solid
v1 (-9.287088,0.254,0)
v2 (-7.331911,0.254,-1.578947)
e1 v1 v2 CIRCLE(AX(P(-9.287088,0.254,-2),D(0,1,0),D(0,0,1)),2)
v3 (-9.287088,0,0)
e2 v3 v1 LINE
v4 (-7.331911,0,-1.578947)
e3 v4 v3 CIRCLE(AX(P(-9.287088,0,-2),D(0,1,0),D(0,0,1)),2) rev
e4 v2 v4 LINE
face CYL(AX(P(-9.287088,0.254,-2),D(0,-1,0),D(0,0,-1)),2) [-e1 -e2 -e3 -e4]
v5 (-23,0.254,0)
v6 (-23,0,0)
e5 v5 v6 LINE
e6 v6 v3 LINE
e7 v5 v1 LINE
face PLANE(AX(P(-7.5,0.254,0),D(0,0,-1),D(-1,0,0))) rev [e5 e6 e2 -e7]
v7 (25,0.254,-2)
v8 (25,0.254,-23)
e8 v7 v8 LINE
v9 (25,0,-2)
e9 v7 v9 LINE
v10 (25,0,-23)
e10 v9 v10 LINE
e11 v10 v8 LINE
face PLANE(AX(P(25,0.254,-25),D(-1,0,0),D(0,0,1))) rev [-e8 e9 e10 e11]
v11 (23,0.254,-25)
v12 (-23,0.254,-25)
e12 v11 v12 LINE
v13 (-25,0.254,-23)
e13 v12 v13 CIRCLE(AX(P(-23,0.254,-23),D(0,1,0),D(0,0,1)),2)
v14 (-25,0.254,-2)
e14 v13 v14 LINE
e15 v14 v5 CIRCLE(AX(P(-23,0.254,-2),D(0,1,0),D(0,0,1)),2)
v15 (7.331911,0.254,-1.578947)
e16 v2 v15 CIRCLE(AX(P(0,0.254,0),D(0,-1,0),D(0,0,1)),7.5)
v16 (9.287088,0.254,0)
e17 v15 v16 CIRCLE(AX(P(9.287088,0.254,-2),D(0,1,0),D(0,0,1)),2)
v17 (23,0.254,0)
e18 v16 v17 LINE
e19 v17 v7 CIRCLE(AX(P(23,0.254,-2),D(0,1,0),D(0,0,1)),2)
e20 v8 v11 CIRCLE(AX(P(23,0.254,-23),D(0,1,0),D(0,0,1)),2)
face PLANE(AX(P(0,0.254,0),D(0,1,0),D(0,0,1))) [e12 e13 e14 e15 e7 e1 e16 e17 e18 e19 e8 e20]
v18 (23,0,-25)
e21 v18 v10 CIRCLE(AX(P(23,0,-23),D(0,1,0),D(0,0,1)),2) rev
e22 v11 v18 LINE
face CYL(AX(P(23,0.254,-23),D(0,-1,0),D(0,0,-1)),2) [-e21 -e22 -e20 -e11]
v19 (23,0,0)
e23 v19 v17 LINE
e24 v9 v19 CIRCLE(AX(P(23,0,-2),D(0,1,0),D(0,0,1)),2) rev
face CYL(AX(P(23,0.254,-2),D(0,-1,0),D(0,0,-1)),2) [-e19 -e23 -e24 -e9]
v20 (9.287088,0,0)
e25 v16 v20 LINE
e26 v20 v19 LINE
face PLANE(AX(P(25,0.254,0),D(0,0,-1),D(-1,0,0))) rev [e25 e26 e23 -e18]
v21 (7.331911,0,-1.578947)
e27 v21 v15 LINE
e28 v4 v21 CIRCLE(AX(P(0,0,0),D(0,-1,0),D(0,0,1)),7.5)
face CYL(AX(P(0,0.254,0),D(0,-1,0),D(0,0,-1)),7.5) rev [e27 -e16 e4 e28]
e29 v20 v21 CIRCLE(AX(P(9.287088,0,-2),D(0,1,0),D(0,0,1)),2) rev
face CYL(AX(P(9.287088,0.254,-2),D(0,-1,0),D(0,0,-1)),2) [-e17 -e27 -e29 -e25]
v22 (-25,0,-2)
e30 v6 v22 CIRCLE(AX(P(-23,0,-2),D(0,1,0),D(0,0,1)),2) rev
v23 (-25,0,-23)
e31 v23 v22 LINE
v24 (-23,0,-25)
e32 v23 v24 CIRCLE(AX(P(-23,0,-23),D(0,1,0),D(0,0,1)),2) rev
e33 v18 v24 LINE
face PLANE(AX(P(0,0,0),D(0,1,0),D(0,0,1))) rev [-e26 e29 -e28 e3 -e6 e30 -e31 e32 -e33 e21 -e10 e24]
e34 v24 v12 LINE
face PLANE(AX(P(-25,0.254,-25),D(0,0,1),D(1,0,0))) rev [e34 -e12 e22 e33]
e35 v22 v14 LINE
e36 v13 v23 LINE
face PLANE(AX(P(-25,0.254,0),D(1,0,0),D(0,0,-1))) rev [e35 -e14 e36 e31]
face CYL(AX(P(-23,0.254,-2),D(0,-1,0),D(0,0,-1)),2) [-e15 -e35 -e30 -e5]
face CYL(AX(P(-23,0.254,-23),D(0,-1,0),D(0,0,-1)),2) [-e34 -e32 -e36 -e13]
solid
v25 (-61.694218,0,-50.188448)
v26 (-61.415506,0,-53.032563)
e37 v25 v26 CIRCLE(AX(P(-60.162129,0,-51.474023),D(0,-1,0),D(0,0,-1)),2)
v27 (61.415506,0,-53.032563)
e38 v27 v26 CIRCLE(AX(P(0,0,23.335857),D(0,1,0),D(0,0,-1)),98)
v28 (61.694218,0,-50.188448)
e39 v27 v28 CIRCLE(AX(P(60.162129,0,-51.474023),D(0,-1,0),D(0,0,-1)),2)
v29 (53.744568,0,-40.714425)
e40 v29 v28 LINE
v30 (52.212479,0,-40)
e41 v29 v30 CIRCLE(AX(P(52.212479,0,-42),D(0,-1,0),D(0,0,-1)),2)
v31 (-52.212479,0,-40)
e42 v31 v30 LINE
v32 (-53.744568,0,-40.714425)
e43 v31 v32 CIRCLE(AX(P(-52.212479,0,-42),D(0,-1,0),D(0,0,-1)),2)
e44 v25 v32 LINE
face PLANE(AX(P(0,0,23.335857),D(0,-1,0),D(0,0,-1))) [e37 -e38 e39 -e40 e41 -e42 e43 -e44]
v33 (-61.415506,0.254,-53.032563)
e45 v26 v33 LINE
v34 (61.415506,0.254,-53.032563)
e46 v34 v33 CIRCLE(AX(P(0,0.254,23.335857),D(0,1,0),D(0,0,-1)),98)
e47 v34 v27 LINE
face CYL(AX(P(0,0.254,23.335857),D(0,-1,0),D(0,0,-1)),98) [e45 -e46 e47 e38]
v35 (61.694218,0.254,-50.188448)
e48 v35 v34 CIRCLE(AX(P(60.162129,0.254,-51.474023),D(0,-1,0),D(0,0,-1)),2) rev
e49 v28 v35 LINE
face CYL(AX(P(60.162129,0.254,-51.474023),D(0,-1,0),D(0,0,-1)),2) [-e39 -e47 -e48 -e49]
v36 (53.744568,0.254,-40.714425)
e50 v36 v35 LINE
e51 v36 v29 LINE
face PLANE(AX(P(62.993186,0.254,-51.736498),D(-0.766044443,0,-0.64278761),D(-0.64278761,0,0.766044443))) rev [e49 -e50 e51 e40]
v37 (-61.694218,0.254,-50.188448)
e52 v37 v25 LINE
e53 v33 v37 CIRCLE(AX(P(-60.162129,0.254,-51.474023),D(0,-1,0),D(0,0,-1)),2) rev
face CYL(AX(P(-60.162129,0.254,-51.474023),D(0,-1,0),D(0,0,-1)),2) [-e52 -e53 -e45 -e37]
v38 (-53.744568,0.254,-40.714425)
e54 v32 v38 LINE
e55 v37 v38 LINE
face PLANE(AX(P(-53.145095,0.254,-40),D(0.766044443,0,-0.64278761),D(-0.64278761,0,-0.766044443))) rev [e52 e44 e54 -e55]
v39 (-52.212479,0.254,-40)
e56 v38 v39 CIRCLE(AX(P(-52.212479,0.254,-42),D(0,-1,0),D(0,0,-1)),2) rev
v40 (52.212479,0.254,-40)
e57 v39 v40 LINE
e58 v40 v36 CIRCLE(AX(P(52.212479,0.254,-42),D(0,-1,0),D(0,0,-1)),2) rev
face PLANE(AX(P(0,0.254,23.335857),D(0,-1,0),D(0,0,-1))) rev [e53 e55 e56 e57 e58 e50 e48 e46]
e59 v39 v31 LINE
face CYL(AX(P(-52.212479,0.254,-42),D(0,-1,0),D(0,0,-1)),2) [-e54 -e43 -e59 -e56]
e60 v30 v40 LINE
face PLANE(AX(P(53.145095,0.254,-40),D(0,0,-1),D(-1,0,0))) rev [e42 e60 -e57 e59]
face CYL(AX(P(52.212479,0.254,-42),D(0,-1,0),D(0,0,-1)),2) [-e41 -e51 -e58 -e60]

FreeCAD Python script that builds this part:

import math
import FreeCAD as App
import Part
import Sketcher

V = App.Vector
Q = App.Units.Quantity


def edges_at(feature, points):
    """Names of the edges that pass closest to the given points."""
    edges = feature.Shape.Edges
    near = lambda p: min(range(len(edges)), key=lambda i: edges[i].distToShape(Part.Vertex(*p))[0])
    return sorted({f"Edge{near(p) + 1}" for p in points})

doc = App.newDocument("Part")
body = doc.addObject("PartDesign::Body", "Body")

# Sketch on XZ plane
sketch1 = body.newObject("Sketcher::SketchObject", "Sketch")
sketch1.AttachmentSupport = (doc.getObject("XZ_Plane"), [""])
sketch1.MapMode = "FlatFace"
sketch1.addGeometry([
    Part.LineSegment(V(-25, 0, 0), V(-8, 0, 0)),  # 0
    Part.ArcOfCircle(Part.Circle(V(0, 0, 0), V(0, 0, 1), 8), math.radians(180), math.radians(360)),  # 1
    Part.LineSegment(V(8, 0, 0), V(25, 0, 0)),  # 2
    Part.LineSegment(V(25, 0, 0), V(25, -25, 0)),  # 3
    Part.LineSegment(V(25, -25, 0), V(-25, -25, 0)),  # 4
    Part.LineSegment(V(-25, -25, 0), V(-25, 0, 0)),  # 5
], False)
sketch1.addConstraint([
    Sketcher.Constraint("Coincident", 0, 2, 1, 1),
    Sketcher.Constraint("Coincident", 1, 2, 2, 1),
    Sketcher.Constraint("Coincident", 2, 2, 3, 1),
    Sketcher.Constraint("Coincident", 3, 2, 4, 1),
    Sketcher.Constraint("Coincident", 4, 2, 5, 1),
    Sketcher.Constraint("Coincident", 5, 2, 0, 1),
    Sketcher.Constraint("Horizontal", 0),
    Sketcher.Constraint("Horizontal", 2),
    Sketcher.Constraint("Vertical", 3),
    Sketcher.Constraint("Horizontal", 4),
    Sketcher.Constraint("Vertical", 5),
    Sketcher.Constraint("Coincident", 1, 3, -1, 1),
    Sketcher.Constraint("Symmetric", 2, 2, 5, 2, -1, 1),
    Sketcher.Constraint("PointOnObject", 0, 2, -1),
    Sketcher.Constraint("Radius", 1, Q("7.5 mm")),
    Sketcher.Constraint("DistanceX", 4, 2, 4, 1, Q("50 mm")),
    Sketcher.Constraint("DistanceY", 3, 2, 3, 1, Q("25 mm")),
])
pad1 = body.newObject("PartDesign::Pad", "Pad")
pad1.Profile = sketch1
pad1.Length = 0.254
pad1.Reversed = True
doc.recompute()

fillet = body.newObject("PartDesign::Fillet", "Fillet")
fillet.Base = (pad1, edges_at(pad1, [
    (-7.5, 0.127, 0),
    (-25, 0.127, 0),
    (-25, 0.127, -25),
    (25, 0.127, -25),
    (25, 0.127, 0),
    (7.5, 0.127, 0),
]))
fillet.Radius = 2
body2 = doc.addObject("PartDesign::Body", "Body001")

# Sketch on XZ plane
sketch2 = body2.newObject("Sketcher::SketchObject", "Sketch001")
sketch2.AttachmentSupport = (doc.getObject("XZ_Plane001"), [""])
sketch2.MapMode = "FlatFace"
sketch2.addGeometry([
    Part.LineSegment(V(-53, -40, 0), V(53, -40, 0)),
    Part.LineSegment(V(53, -40, 0), V(63, -52, 0)),
    Part.ArcOfCircle(Part.Circle(V(0, 23, 0), V(0, 0, 1), 98), math.radians(-130), math.radians(-50)),
    Part.LineSegment(V(-63, -52, 0), V(-53, -40, 0)),
], False)
sketch2.addConstraint([
    Sketcher.Constraint("Coincident", 0, 2, 1, 1),
    Sketcher.Constraint("Coincident", 1, 2, 2, 2),
    Sketcher.Constraint("Coincident", 2, 1, 3, 1),
    Sketcher.Constraint("Coincident", 3, 2, 0, 1),
    Sketcher.Constraint("Horizontal", 0),
    Sketcher.Constraint("Symmetric", 1, 2, 2, 1, -2),
    Sketcher.Constraint("Equal", 1, 3),
    Sketcher.Constraint("Radius", 2, Q("98 mm")),
    Sketcher.Constraint("Angle", 1, Q("-50 deg")),
    Sketcher.Constraint("DistanceY", 0, 2, -1, 1, Q("40 mm")),
    Sketcher.Constraint("DistanceX", 0, 1, 0, 2, Q("106.290189 mm")),
    Sketcher.Constraint("DistanceY", 1, 2, -1, 1, Q("51.736498 mm")),
])
pad2 = body2.newObject("PartDesign::Pad", "Pad001")
pad2.Profile = sketch2
pad2.Length = 0.254
pad2.Reversed = True
doc.recompute()

fillet2 = body2.newObject("PartDesign::Fillet", "Fillet001")
fillet2.Base = (pad2, edges_at(pad2, [
    (53.145, 0.127, -40),
    (-53.145, 0.127, -40),
    (-62.993, 0.127, -51.736),
    (62.993, 0.127, -51.736),
]))
fillet2.Radius = 2

doc.recompute()
